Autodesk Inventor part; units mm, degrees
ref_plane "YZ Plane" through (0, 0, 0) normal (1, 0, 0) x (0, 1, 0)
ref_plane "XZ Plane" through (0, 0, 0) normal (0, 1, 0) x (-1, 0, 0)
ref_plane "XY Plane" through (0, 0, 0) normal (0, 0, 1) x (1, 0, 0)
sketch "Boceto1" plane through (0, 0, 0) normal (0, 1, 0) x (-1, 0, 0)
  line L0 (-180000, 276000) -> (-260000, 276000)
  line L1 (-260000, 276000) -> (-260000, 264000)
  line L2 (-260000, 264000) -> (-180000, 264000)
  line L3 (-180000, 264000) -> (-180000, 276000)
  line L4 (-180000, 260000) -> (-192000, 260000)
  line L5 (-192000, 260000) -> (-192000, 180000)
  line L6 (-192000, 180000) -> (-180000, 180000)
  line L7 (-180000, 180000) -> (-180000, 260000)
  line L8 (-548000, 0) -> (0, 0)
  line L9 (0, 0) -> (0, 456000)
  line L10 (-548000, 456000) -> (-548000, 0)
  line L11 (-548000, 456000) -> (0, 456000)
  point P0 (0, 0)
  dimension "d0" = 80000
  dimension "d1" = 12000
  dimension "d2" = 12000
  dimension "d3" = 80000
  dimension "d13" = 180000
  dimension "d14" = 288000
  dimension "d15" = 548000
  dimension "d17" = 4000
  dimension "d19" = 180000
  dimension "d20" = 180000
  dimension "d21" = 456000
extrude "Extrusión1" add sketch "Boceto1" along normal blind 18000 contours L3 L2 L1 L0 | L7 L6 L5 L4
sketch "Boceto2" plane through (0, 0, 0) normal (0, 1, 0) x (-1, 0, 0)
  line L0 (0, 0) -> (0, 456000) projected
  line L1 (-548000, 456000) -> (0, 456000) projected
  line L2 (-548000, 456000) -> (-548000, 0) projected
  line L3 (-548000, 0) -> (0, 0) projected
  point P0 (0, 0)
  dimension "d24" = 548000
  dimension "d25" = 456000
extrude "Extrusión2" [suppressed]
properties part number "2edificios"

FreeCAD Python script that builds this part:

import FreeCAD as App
import Part
import Sketcher
from FreeCAD import Vector
Q = App.Units.Quantity

doc = App.newDocument("Part")
body = doc.addObject("PartDesign::Body", "Body")
body.AllowCompound = True

# Sketch on XZ plane
sketch1 = body.newObject("Sketcher::SketchObject", "Sketch")
sketch1.AttachmentSupport = (doc.getObject("XZ_Plane"), [""])
sketch1.MapMode = "FlatFace"
sketch1.addGeometry(Part.LineSegment(Vector(180000, 264000, 0), Vector(180000, 276000, 0)), False)
sketch1.addGeometry(Part.LineSegment(Vector(180000, 276000, 0), Vector(260000, 276000, 0)), False)
sketch1.addGeometry(Part.LineSegment(Vector(260000, 276000, 0), Vector(260000, 264000, 0)), False)
sketch1.addGeometry(Part.LineSegment(Vector(260000, 264000, 0), Vector(180000, 264000, 0)), False)
sketch1.addGeometry(Part.LineSegment(Vector(180000, 180000, 0), Vector(180000, 260000, 0)), False)
sketch1.addGeometry(Part.LineSegment(Vector(180000, 260000, 0), Vector(192000, 260000, 0)), False)
sketch1.addGeometry(Part.LineSegment(Vector(192000, 260000, 0), Vector(192000, 180000, 0)), False)
sketch1.addGeometry(Part.LineSegment(Vector(192000, 180000, 0), Vector(180000, 180000, 0)), False)
sketch1.addConstraint(Sketcher.Constraint("Coincident", 0, 2, 1, 1))
sketch1.addConstraint(Sketcher.Constraint("Coincident", 1, 2, 2, 1))
sketch1.addConstraint(Sketcher.Constraint("Coincident", 2, 2, 3, 1))
sketch1.addConstraint(Sketcher.Constraint("Coincident", 3, 2, 0, 1))
sketch1.addConstraint(Sketcher.Constraint("Coincident", 4, 2, 5, 1))
sketch1.addConstraint(Sketcher.Constraint("Coincident", 5, 2, 6, 1))
sketch1.addConstraint(Sketcher.Constraint("Coincident", 6, 2, 7, 1))
sketch1.addConstraint(Sketcher.Constraint("Coincident", 7, 2, 4, 1))
sketch1.addConstraint(Sketcher.Constraint("Vertical", 0))
sketch1.addConstraint(Sketcher.Constraint("Horizontal", 1))
sketch1.addConstraint(Sketcher.Constraint("Vertical", 2))
sketch1.addConstraint(Sketcher.Constraint("Horizontal", 3))
sketch1.addConstraint(Sketcher.Constraint("Vertical", 4))
sketch1.addConstraint(Sketcher.Constraint("Horizontal", 5))
sketch1.addConstraint(Sketcher.Constraint("Vertical", 6))
sketch1.addConstraint(Sketcher.Constraint("Horizontal", 7))
sketch1.addConstraint(Sketcher.Constraint("Vertical", 3, 2, 4, 2))
sketch1.addConstraint(Sketcher.Constraint("Equal", 7, 0))
sketch1.addConstraint(Sketcher.Constraint("Equal", 3, 4))
sketch1.addConstraint(Sketcher.Constraint("DistanceX", 1, 1, 1, 2, Q("80000 mm")))
sketch1.addConstraint(Sketcher.Constraint("DistanceX", 5, 1, 5, 2, Q("12000 mm")))
sketch1.addConstraint(Sketcher.Constraint("DistanceX", -1, 1, 0, 2, Q("180000 mm")))
sketch1.addConstraint(Sketcher.Constraint("DistanceY", -1, 1, 6, 2, Q("180000 mm")))
sketch1.addConstraint(Sketcher.Constraint("DistanceY", 4, 2, 3, 2, Q("4000 mm")))
pad1 = body.newObject("PartDesign::Pad", "Pad")
pad1.Profile = sketch1
pad1.Length = 18000
pad1.Reversed = True

doc.recompute()
